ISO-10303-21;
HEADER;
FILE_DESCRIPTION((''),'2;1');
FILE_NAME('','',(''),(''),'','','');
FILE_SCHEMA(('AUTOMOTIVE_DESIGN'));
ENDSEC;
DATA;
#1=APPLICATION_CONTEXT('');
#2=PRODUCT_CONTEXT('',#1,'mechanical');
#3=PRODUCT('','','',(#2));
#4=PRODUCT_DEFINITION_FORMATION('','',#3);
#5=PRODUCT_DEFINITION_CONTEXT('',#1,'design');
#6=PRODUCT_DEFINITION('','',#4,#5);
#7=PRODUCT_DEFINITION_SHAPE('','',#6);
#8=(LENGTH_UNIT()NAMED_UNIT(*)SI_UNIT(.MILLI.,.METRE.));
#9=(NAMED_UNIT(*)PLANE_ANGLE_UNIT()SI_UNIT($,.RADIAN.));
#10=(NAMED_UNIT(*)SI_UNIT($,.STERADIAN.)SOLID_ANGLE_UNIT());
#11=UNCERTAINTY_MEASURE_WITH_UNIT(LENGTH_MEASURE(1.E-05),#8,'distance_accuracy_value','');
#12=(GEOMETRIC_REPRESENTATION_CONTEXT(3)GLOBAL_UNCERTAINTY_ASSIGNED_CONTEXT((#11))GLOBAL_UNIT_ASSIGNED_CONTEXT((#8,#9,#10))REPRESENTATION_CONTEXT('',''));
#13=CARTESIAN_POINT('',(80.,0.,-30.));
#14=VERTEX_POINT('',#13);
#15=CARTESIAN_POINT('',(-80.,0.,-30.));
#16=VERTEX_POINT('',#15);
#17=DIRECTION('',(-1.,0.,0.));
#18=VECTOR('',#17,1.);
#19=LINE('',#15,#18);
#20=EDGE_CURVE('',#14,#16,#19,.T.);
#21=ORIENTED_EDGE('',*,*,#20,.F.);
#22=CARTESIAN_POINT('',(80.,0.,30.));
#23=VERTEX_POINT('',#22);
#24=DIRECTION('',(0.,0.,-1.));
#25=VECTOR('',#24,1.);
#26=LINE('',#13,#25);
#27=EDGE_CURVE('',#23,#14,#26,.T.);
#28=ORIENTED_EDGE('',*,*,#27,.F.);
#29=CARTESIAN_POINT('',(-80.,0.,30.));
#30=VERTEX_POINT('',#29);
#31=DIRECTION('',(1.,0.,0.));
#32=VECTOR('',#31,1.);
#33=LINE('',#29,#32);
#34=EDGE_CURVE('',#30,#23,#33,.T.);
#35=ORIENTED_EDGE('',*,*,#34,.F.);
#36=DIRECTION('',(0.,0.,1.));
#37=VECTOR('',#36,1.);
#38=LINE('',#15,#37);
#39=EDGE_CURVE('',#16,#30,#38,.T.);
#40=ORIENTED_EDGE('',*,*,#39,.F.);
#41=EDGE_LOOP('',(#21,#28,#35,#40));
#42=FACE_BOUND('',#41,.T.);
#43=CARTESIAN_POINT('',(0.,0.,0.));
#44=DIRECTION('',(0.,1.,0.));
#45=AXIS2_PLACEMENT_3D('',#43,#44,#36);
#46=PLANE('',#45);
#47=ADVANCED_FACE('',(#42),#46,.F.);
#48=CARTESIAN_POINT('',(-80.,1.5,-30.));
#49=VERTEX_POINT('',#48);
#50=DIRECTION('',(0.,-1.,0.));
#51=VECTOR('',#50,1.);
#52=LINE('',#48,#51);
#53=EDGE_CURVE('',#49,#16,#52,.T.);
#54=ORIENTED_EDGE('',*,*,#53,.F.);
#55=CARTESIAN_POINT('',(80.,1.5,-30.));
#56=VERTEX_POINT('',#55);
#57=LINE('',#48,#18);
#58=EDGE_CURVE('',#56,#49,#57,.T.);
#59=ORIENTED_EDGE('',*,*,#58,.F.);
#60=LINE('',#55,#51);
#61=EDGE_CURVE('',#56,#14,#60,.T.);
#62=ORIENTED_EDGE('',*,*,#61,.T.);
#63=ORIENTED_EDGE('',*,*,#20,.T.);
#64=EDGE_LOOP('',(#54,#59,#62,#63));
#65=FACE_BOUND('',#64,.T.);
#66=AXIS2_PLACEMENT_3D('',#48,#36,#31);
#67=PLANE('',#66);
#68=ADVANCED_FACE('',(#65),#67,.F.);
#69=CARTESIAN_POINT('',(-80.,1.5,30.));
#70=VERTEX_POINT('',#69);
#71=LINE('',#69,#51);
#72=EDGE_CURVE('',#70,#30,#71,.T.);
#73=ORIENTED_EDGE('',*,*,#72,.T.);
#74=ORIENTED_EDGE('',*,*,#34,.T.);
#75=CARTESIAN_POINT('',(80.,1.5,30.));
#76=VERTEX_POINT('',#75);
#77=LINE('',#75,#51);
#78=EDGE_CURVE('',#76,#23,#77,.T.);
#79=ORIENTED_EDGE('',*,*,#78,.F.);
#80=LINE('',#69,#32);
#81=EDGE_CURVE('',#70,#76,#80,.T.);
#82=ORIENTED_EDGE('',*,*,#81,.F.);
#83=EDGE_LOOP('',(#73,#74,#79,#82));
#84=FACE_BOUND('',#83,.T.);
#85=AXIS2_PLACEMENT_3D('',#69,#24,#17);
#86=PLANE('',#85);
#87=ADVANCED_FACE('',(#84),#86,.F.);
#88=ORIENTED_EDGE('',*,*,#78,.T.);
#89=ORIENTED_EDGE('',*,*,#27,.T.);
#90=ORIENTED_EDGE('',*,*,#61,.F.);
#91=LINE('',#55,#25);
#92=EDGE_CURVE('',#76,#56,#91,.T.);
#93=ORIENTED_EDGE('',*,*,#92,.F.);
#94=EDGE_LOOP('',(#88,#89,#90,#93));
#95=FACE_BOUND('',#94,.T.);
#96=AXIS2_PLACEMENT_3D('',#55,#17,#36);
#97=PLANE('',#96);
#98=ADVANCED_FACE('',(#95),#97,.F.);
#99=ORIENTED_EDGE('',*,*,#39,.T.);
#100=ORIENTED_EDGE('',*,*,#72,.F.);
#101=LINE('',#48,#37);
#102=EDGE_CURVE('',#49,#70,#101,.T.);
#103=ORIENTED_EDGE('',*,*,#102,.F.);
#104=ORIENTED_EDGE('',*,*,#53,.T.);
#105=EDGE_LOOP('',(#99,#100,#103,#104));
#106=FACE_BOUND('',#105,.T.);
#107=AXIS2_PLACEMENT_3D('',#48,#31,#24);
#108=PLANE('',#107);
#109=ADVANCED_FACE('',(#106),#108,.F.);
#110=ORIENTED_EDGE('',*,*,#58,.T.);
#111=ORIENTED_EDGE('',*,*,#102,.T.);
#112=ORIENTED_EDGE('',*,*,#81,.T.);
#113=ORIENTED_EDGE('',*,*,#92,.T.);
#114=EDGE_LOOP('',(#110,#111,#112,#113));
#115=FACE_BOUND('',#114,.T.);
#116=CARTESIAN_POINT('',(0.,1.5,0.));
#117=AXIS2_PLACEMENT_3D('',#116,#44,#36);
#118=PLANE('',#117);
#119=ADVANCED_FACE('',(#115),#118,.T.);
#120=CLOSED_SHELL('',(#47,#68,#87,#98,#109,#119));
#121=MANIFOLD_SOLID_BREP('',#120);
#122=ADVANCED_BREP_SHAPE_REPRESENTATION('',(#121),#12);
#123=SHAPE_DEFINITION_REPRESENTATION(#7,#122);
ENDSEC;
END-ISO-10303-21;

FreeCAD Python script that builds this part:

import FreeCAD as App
import Part
import Sketcher


def add_polygon(sketch, points):
    """Adds a closed chain of lines whose ends are joined by coincident constraints."""
    first, n = sketch.GeometryCount, len(points)
    for a, b in zip(points, points[1:] + points[:1]):
        sketch.addGeometry(Part.LineSegment(App.Vector(*a, 0), App.Vector(*b, 0)), False)
    for i in range(n):
        sketch.addConstraint(Sketcher.Constraint("Coincident", first + i, 2, first + (i + 1) % n, 1))

doc = App.newDocument("Part")
body = doc.addObject("PartDesign::Body", "Body")

sketch1 = doc.addObject("Sketcher::SketchObject", "Sketch")
body.addObject(sketch1)
sketch1.AttachmentSupport = (doc.XZ_Plane, [""])
sketch1.MapMode = "FlatFace"
add_polygon(sketch1, [(-80, -30), (-80, 30), (80, 30), (80, -30)])
sketch1.addConstraint([
    Sketcher.Constraint("Vertical", 0),
    Sketcher.Constraint("Horizontal", 1),
    Sketcher.Constraint("Vertical", 2),
    Sketcher.Constraint("Horizontal", 3),
    Sketcher.Constraint("Symmetric", 0, 2, 2, 2, -1, 1),
    Sketcher.Constraint("DistanceX", 1, 1, 1, 2, 160.0),
    Sketcher.Constraint("DistanceY", 0, 1, 0, 2, 60.0),
])
pad1 = doc.addObject("PartDesign::Pad", "Pad")
body.addObject(pad1)
pad1.Profile = sketch1
pad1.Length = 1.5
pad1.Reversed = True

doc.recompute()
